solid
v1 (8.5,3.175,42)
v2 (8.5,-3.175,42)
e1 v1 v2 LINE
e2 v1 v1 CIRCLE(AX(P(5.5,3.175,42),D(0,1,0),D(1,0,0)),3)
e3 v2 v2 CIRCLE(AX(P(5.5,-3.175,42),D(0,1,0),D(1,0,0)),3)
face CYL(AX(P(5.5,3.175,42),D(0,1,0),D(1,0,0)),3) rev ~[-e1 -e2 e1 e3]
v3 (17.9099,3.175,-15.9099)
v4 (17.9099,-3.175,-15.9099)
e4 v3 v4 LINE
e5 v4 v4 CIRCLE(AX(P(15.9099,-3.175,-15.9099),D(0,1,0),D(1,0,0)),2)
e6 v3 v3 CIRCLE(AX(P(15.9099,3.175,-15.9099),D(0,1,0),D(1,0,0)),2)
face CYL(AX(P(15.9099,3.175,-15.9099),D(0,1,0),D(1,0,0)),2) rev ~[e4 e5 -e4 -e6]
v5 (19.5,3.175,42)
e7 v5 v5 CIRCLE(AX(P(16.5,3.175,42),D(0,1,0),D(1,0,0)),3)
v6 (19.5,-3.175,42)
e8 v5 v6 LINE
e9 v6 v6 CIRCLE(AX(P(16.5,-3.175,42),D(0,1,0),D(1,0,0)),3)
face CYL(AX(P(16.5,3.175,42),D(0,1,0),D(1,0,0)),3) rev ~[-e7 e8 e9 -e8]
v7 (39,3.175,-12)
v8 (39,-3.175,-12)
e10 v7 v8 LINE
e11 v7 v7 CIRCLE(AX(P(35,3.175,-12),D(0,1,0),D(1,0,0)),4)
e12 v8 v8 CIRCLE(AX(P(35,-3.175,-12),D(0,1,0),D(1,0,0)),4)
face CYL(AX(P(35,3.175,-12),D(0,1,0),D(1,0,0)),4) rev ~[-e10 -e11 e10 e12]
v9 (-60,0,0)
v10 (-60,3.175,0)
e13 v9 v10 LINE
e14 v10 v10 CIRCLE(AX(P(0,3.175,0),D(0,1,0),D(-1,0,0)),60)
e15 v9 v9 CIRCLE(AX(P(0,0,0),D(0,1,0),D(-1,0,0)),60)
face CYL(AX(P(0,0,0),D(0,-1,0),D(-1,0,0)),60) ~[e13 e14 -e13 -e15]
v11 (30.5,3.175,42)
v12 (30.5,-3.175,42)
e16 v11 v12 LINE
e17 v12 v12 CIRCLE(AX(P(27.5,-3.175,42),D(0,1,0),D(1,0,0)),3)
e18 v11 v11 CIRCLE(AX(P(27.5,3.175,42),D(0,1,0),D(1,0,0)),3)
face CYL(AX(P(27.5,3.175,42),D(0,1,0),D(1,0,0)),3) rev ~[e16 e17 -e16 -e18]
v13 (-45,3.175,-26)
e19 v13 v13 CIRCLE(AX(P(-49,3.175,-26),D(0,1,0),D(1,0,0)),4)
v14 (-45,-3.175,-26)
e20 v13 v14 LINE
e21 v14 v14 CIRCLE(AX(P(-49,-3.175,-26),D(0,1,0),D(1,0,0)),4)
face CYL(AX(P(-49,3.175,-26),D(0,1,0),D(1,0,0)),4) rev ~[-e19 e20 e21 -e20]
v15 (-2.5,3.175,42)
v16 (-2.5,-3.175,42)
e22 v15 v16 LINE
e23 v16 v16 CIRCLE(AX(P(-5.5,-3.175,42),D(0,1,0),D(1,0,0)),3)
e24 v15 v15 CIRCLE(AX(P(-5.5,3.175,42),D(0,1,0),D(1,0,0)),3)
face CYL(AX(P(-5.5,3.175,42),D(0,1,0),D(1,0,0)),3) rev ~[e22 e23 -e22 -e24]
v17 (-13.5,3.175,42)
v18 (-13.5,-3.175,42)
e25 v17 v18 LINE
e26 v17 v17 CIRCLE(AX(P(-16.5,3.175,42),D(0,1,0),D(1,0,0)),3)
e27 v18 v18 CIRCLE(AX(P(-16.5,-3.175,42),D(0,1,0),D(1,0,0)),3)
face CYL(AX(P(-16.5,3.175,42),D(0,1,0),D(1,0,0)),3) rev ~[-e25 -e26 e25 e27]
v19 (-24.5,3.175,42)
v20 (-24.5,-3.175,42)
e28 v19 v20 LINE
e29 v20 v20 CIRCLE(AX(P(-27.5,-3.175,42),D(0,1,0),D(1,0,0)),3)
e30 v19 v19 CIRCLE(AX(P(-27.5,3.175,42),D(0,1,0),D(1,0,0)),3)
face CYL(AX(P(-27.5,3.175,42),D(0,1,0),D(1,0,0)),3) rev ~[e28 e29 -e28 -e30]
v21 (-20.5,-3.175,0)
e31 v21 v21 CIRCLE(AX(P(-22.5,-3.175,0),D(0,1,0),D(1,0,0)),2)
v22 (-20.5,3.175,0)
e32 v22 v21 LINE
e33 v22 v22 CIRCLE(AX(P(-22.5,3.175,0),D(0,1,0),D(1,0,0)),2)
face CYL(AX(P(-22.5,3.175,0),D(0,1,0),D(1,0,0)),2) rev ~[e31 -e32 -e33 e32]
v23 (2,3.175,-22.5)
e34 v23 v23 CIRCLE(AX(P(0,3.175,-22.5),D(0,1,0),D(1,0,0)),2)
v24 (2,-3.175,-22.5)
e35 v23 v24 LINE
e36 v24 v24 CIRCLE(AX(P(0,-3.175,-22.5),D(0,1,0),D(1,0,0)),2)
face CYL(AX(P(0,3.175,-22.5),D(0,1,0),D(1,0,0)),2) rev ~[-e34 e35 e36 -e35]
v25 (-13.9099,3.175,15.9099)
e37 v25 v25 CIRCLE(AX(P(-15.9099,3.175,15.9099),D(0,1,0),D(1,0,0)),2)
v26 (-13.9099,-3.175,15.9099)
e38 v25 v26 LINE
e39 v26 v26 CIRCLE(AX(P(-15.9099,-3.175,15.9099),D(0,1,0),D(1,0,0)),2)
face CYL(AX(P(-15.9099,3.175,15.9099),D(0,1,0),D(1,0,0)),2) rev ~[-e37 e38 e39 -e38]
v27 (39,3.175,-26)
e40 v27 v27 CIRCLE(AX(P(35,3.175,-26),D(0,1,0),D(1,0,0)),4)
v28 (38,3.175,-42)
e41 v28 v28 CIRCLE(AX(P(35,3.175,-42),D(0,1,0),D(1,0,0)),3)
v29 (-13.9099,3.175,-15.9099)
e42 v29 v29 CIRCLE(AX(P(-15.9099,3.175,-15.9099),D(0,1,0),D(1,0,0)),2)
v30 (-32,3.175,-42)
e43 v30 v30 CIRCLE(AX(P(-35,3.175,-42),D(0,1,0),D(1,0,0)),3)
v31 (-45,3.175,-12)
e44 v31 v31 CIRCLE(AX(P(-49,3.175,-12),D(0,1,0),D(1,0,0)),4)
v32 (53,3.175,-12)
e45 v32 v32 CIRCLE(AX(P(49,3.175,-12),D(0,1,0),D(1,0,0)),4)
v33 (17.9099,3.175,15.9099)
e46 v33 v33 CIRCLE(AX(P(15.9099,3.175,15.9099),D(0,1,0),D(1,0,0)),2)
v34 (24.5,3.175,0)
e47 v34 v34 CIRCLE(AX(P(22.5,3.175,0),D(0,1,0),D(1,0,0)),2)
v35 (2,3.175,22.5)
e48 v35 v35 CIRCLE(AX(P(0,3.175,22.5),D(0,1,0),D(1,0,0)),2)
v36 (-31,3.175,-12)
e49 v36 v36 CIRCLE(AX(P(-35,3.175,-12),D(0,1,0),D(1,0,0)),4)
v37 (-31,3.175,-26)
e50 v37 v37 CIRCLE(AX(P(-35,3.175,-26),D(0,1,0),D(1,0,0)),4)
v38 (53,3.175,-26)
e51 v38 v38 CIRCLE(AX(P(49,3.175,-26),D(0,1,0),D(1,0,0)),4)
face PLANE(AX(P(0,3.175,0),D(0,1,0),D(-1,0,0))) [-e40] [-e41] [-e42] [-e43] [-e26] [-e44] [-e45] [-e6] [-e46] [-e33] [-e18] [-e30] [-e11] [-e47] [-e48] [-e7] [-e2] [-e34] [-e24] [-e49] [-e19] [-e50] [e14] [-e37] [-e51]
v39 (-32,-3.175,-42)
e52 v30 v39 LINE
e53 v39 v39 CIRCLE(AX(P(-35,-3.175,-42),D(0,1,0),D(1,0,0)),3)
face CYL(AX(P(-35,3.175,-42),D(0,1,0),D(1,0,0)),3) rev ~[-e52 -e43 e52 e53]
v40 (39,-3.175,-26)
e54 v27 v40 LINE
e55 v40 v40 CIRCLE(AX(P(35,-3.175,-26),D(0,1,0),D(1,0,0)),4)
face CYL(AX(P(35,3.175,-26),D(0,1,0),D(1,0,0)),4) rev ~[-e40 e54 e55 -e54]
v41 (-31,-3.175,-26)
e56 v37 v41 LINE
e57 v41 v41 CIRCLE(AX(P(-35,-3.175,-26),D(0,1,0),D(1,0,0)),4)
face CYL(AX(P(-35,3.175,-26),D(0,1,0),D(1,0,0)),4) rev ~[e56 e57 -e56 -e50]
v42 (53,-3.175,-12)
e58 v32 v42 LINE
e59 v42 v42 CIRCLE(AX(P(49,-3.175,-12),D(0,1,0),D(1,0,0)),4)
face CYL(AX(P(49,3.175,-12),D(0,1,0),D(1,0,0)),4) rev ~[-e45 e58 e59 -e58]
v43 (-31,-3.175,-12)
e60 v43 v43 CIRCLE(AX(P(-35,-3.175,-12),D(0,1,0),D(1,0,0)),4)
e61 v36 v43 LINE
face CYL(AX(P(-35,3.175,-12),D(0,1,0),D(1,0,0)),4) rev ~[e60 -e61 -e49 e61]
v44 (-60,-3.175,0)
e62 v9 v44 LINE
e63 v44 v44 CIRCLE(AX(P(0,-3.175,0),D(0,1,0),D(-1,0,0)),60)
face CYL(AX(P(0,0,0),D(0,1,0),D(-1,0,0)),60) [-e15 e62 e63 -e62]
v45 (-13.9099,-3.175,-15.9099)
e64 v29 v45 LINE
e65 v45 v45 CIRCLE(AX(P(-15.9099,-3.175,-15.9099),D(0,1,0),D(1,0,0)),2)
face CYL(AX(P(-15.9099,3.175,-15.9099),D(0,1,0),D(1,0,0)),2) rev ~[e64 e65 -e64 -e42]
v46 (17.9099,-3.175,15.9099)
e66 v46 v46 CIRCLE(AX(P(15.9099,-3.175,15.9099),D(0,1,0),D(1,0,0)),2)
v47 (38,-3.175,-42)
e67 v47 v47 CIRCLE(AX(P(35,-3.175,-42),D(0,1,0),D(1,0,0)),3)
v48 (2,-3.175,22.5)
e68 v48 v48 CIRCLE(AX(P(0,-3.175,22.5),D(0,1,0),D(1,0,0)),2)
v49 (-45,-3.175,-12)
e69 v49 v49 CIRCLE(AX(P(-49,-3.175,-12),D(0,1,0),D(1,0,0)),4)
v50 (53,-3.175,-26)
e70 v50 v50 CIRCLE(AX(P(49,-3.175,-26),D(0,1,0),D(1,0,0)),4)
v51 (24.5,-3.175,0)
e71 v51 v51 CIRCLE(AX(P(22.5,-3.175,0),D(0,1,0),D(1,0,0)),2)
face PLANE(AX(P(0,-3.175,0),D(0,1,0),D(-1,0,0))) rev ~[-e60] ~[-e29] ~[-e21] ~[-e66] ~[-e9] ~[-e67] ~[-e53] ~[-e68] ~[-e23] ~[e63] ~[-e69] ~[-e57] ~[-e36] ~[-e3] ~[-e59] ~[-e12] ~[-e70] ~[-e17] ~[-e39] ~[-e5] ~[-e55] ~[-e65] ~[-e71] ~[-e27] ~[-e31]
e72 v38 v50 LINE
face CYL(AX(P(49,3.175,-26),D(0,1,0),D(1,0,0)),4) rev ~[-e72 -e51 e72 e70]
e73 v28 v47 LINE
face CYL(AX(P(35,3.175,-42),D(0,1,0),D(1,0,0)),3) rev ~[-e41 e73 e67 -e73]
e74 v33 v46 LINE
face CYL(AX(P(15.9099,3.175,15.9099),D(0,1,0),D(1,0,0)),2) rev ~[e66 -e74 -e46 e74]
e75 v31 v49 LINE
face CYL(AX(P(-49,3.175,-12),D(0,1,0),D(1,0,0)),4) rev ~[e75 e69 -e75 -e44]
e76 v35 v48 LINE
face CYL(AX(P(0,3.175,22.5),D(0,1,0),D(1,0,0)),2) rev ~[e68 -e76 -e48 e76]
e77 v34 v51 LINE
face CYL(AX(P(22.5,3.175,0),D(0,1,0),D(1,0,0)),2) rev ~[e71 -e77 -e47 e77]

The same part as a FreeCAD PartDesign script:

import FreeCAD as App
import Part
import Sketcher
Q = App.Units.Quantity

doc = App.newDocument("Part")
body = doc.addObject("PartDesign::Body", "Body")

# Sketch on XZ plane
sketch1 = body.newObject("Sketcher::SketchObject", "Sketch")
sketch1.AttachmentSupport = (doc.getObject("XZ_Plane"), [""])
sketch1.MapMode = "FlatFace"
sketch1.addGeometry(Part.Circle(App.Vector(0, 0, 0), App.Vector(0, 0, 1), 60), False)
sketch1.addConstraint(Sketcher.Constraint("Coincident", 0, 3, -1, 1))
sketch1.addConstraint(Sketcher.Constraint("Diameter", 0, Q("120 mm")))
pad1 = body.newObject("PartDesign::Pad", "Pad")
pad1.Profile = sketch1
pad1.Length = 6.35
pad1.Midplane = True

# Sketch on XZ plane
sketch2 = body.newObject("Sketcher::SketchObject", "Sketch001")
sketch2.AttachmentSupport = (doc.getObject("XZ_Plane"), [""])
sketch2.MapMode = "FlatFace"
sketch2.AttachmentOffset = App.Placement(App.Vector(0, 0, -3.175), App.Rotation())
sketch2.addGeometry(Part.Circle(App.Vector(0, -22.5, 0), App.Vector(0, 0, 1), 2), False)
sketch2.addGeometry(Part.Circle(App.Vector(-15.9, -15.9, 0), App.Vector(0, 0, 1), 2), False)
sketch2.addGeometry(Part.Circle(App.Vector(-22.5, 0, 0), App.Vector(0, 0, 1), 2), False)
sketch2.addGeometry(Part.Circle(App.Vector(-15.9, 15.9, 0), App.Vector(0, 0, 1), 2), False)
sketch2.addGeometry(Part.Circle(App.Vector(0, 22.5, 0), App.Vector(0, 0, 1), 2), False)
sketch2.addGeometry(Part.Circle(App.Vector(15.9, 15.9, 0), App.Vector(0, 0, 1), 2), False)
sketch2.addGeometry(Part.Circle(App.Vector(22.5, 0, 0), App.Vector(0, 0, 1), 2), False)
sketch2.addGeometry(Part.Circle(App.Vector(15.9, -15.9, 0), App.Vector(0, 0, 1), 2), False)
sketch2.addConstraint(Sketcher.Constraint("Equal", 0, 1))
sketch2.addConstraint(Sketcher.Constraint("Equal", 1, 2))
sketch2.addConstraint(Sketcher.Constraint("Equal", 2, 3))
sketch2.addConstraint(Sketcher.Constraint("Equal", 3, 4))
sketch2.addConstraint(Sketcher.Constraint("Equal", 4, 5))
sketch2.addConstraint(Sketcher.Constraint("Equal", 5, 6))
sketch2.addConstraint(Sketcher.Constraint("Equal", 6, 7))
sketch2.addConstraint(Sketcher.Constraint("Symmetric", 0, 3, 4, 3, -1, 1))
sketch2.addConstraint(Sketcher.Constraint("Symmetric", 1, 3, 5, 3, -1, 1))
sketch2.addConstraint(Sketcher.Constraint("Symmetric", 2, 3, 6, 3, -1, 1))
sketch2.addConstraint(Sketcher.Constraint("Symmetric", 3, 3, 7, 3, -1, 1))
sketch2.addConstraint(Sketcher.Constraint("Symmetric", 3, 3, 5, 3, -2))
sketch2.addConstraint(Sketcher.Constraint("PointOnObject", 0, 3, -2))
sketch2.addConstraint(Sketcher.Constraint("PointOnObject", 2, 3, -1))
sketch2.addConstraint(Sketcher.Constraint("Diameter", 0, Q("4 mm")))
sketch2.addConstraint(Sketcher.Constraint("DistanceY", 0, 3, -1, 1, Q("22.5 mm")))
sketch2.addConstraint(Sketcher.Constraint("DistanceX", 2, 3, -1, 1, Q("22.5 mm")))
sketch2.addConstraint(Sketcher.Constraint("DistanceX", 1, 3, -1, 1, Q("15.91 mm")))
sketch2.addConstraint(Sketcher.Constraint("DistanceY", 1, 3, -1, 1, Q("15.91 mm")))
pocket1 = body.newObject("PartDesign::Pocket", "Pocket")
pocket1.Profile = sketch2
pocket1.Type = "ThroughAll"
pocket1.Reversed = True

# Sketch on XZ plane
sketch3 = body.newObject("Sketcher::SketchObject", "Sketch002")
sketch3.AttachmentSupport = (doc.getObject("XZ_Plane"), [""])
sketch3.MapMode = "FlatFace"
sketch3.AttachmentOffset = App.Placement(App.Vector(0, 0, -3.175), App.Rotation())
sketch3.addGeometry(Part.Circle(App.Vector(-27.5, 42, 0), App.Vector(0, 0, 1), 3), False)
sketch3.addGeometry(Part.Circle(App.Vector(-16.5, 42, 0), App.Vector(0, 0, 1), 3), False)
sketch3.addGeometry(Part.Circle(App.Vector(-5.5, 42, 0), App.Vector(0, 0, 1), 3), False)
sketch3.addGeometry(Part.Circle(App.Vector(5.5, 42, 0), App.Vector(0, 0, 1), 3), False)
sketch3.addGeometry(Part.Circle(App.Vector(16.5, 42, 0), App.Vector(0, 0, 1), 3), False)
sketch3.addGeometry(Part.Circle(App.Vector(27.5, 42, 0), App.Vector(0, 0, 1), 3), False)
sketch3.addConstraint(Sketcher.Constraint("Equal", 0, 1))
sketch3.addConstraint(Sketcher.Constraint("Equal", 1, 2))
sketch3.addConstraint(Sketcher.Constraint("Equal", 2, 3))
sketch3.addConstraint(Sketcher.Constraint("Equal", 3, 4))
sketch3.addConstraint(Sketcher.Constraint("Equal", 4, 5))
sketch3.addConstraint(Sketcher.Constraint("Symmetric", 2, 3, 3, 3, -2))
sketch3.addConstraint(Sketcher.Constraint("Symmetric", 1, 3, 4, 3, -2))
sketch3.addConstraint(Sketcher.Constraint("Symmetric", 0, 3, 5, 3, -2))
sketch3.addConstraint(Sketcher.Constraint("Horizontal", 0, 3, 1, 3))
sketch3.addConstraint(Sketcher.Constraint("Horizontal", 1, 3, 2, 3))
sketch3.addConstraint(Sketcher.Constraint("Diameter", 0, Q("6 mm")))
sketch3.addConstraint(Sketcher.Constraint("DistanceY", -1, 1, 0, 3, Q("42 mm")))
sketch3.addConstraint(Sketcher.Constraint("DistanceX", 0, 3, 1, 3, Q("11 mm")))
sketch3.addConstraint(Sketcher.Constraint("DistanceX", 1, 3, 2, 3, Q("11 mm")))
sketch3.addConstraint(Sketcher.Constraint("DistanceX", 2, 3, 3, 3, Q("11 mm")))
pocket2 = body.newObject("PartDesign::Pocket", "Pocket001")
pocket2.Profile = sketch3
pocket2.Type = "ThroughAll"
pocket2.Reversed = True

# Sketch on XZ plane
sketch4 = body.newObject("Sketcher::SketchObject", "Sketch003")
sketch4.AttachmentSupport = (doc.getObject("XZ_Plane"), [""])
sketch4.MapMode = "FlatFace"
sketch4.AttachmentOffset = App.Placement(App.Vector(0, 0, -3.175), App.Rotation())
sketch4.addGeometry(Part.Circle(App.Vector(-49, -26, 0), App.Vector(0, 0, 1), 4), False)
sketch4.addGeometry(Part.Circle(App.Vector(-49, -12, 0), App.Vector(0, 0, 1), 4), False)
sketch4.addGeometry(Part.Circle(App.Vector(-35, -42, 0), App.Vector(0, 0, 1), 3), False)
sketch4.addGeometry(Part.Circle(App.Vector(-35, -26, 0), App.Vector(0, 0, 1), 4), False)
sketch4.addGeometry(Part.Circle(App.Vector(-35, -12, 0), App.Vector(0, 0, 1), 4), False)
sketch4.addGeometry(Part.Circle(App.Vector(49, -26, 0), App.Vector(0, 0, 1), 4), False)
sketch4.addGeometry(Part.Circle(App.Vector(49, -12, 0), App.Vector(0, 0, 1), 4), False)
sketch4.addGeometry(Part.Circle(App.Vector(35, -42, 0), App.Vector(0, 0, 1), 3), False)
sketch4.addGeometry(Part.Circle(App.Vector(35, -26, 0), App.Vector(0, 0, 1), 4), False)
sketch4.addGeometry(Part.Circle(App.Vector(35, -12, 0), App.Vector(0, 0, 1), 4), False)
sketch4.addConstraint(Sketcher.Constraint("Equal", 0, 1))
sketch4.addConstraint(Sketcher.Constraint("Equal", 1, 3))
sketch4.addConstraint(Sketcher.Constraint("Equal", 3, 4))
sketch4.addConstraint(Sketcher.Constraint("Equal", 4, 5))
sketch4.addConstraint(Sketcher.Constraint("Equal", 5, 6))
sketch4.addConstraint(Sketcher.Constraint("Equal", 2, 7))
sketch4.addConstraint(Sketcher.Constraint("Equal", 6, 8))
sketch4.addConstraint(Sketcher.Constraint("Equal", 8, 9))
sketch4.addConstraint(Sketcher.Constraint("Symmetric", 0, 3, 5, 3, -2))
sketch4.addConstraint(Sketcher.Constraint("Symmetric", 1, 3, 6, 3, -2))
sketch4.addConstraint(Sketcher.Constraint("Symmetric", 2, 3, 7, 3, -2))
sketch4.addConstraint(Sketcher.Constraint("Symmetric", 3, 3, 8, 3, -2))
sketch4.addConstraint(Sketcher.Constraint("Symmetric", 4, 3, 9, 3, -2))
sketch4.addConstraint(Sketcher.Constraint("Horizontal", 0, 3, 3, 3))
sketch4.addConstraint(Sketcher.Constraint("Horizontal", 1, 3, 4, 3))
sketch4.addConstraint(Sketcher.Constraint("Vertical", 0, 3, 1, 3))
sketch4.addConstraint(Sketcher.Constraint("Vertical", 2, 3, 3, 3))
sketch4.addConstraint(Sketcher.Constraint("Vertical", 3, 3, 4, 3))
sketch4.addConstraint(Sketcher.Constraint("Diameter", 0, Q("8 mm")))
sketch4.addConstraint(Sketcher.Constraint("Diameter", 2, Q("6 mm")))
sketch4.addConstraint(Sketcher.Constraint("DistanceY", 1, 3, -1, 1, Q("12 mm")))
sketch4.addConstraint(Sketcher.Constraint("DistanceX", 2, 3, -1, 1, Q("35 mm")))
sketch4.addConstraint(Sketcher.Constraint("DistanceY", 0, 3, 1, 3, Q("14 mm")))
sketch4.addConstraint(Sketcher.Constraint("DistanceX", 0, 3, 2, 3, Q("14 mm")))
sketch4.addConstraint(Sketcher.Constraint("DistanceY", 2, 3, 0, 3, Q("16 mm")))
pocket3 = body.newObject("PartDesign::Pocket", "Pocket002")
pocket3.Profile = sketch4
pocket3.Type = "ThroughAll"
pocket3.Reversed = True

doc.recompute()
